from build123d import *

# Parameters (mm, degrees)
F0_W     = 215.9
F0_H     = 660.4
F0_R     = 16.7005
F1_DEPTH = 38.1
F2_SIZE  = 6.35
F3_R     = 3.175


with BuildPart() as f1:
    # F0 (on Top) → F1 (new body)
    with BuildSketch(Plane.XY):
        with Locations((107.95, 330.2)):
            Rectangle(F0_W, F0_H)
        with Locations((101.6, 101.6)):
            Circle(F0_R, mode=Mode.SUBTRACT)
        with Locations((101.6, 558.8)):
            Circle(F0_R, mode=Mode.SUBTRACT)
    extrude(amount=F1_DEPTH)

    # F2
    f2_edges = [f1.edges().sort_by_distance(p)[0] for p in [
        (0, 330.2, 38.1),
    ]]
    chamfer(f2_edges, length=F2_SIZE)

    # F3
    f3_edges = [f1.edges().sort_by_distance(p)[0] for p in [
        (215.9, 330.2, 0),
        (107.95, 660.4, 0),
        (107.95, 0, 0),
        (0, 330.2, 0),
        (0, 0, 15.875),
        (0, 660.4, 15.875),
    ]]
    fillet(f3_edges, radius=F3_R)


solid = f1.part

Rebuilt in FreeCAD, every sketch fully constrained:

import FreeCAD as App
import Part
import Sketcher
Q = App.Units.Quantity


def edges_at(feature, points):
    """Names of the edges that pass closest to the given points."""
    edges = feature.Shape.Edges
    near = lambda p: min(range(len(edges)), key=lambda i: edges[i].distToShape(Part.Vertex(*p))[0])
    return sorted({f"Edge{near(p) + 1}" for p in points})

doc = App.newDocument("Part")
body = doc.addObject("PartDesign::Body", "Body")

sketch1 = body.newObject("Sketcher::SketchObject", "Sketch")
sketch1.AttachmentSupport = (doc.getObject("XY_Plane"), [""])
sketch1.MapMode = "FlatFace"
sketch1.addGeometry([
    Part.LineSegment(App.Vector(0, 660, 0), App.Vector(0, 0, 0)),
    Part.LineSegment(App.Vector(0, 0, 0), App.Vector(216, 0, 0)),
    Part.LineSegment(App.Vector(216, 0, 0), App.Vector(216, 660, 0)),
    Part.LineSegment(App.Vector(216, 660, 0), App.Vector(0, 660, 0)),
    Part.Circle(App.Vector(102, 102, 0), App.Vector(0, 0, 1), 17),
    Part.Circle(App.Vector(102, 559, 0), App.Vector(0, 0, 1), 17),
], False)
sketch1.addConstraint([
    Sketcher.Constraint("Coincident", 0, 2, 1, 1),
    Sketcher.Constraint("Coincident", 1, 2, 2, 1),
    Sketcher.Constraint("Coincident", 2, 2, 3, 1),
    Sketcher.Constraint("Coincident", 3, 2, 0, 1),
    Sketcher.Constraint("Vertical", 0),
    Sketcher.Constraint("Horizontal", 1),
    Sketcher.Constraint("Vertical", 2),
    Sketcher.Constraint("Horizontal", 3),
    Sketcher.Constraint("Coincident", 0, 2, -1, 1),
    Sketcher.Constraint("Equal", 4, 5),
    Sketcher.Constraint("Vertical", 4, 3, 5, 3),
    Sketcher.Constraint("DistanceY", 0, 2, 0, 1, Q("26 in")),
    Sketcher.Constraint("Diameter", 4, Q("1.315 in")),
    Sketcher.Constraint("DistanceX", 1, 1, 1, 2, Q("8.5 in")),
    Sketcher.Constraint("DistanceX", -1, 1, 4, 3, Q("4 in")),
    Sketcher.Constraint("DistanceY", -1, 1, 4, 3, Q("4 in")),
    Sketcher.Constraint("DistanceY", -1, 1, 5, 3, Q("22 in")),
])
pad1 = body.newObject("PartDesign::Pad", "Pad")
pad1.Profile = sketch1
pad1.Length = Q("1.5 in")
doc.recompute()

chamfer = body.newObject("PartDesign::Chamfer", "Chamfer")
chamfer.Base = (pad1, edges_at(pad1, [(0, 330.2, 38.1)]))
chamfer.Size = Q("0.25 in")
doc.recompute()

fillet = body.newObject("PartDesign::Fillet", "Fillet")
fillet.Base = (chamfer, edges_at(chamfer, [
    (215.9, 330.2, 0),
    (107.95, 660.4, 0),
    (107.95, 0, 0),
    (0, 330.2, 0),
    (0, 0, 15.875),
    (0, 660.4, 15.875),
]))
fillet.Radius = Q("0.125 in")

doc.recompute()
